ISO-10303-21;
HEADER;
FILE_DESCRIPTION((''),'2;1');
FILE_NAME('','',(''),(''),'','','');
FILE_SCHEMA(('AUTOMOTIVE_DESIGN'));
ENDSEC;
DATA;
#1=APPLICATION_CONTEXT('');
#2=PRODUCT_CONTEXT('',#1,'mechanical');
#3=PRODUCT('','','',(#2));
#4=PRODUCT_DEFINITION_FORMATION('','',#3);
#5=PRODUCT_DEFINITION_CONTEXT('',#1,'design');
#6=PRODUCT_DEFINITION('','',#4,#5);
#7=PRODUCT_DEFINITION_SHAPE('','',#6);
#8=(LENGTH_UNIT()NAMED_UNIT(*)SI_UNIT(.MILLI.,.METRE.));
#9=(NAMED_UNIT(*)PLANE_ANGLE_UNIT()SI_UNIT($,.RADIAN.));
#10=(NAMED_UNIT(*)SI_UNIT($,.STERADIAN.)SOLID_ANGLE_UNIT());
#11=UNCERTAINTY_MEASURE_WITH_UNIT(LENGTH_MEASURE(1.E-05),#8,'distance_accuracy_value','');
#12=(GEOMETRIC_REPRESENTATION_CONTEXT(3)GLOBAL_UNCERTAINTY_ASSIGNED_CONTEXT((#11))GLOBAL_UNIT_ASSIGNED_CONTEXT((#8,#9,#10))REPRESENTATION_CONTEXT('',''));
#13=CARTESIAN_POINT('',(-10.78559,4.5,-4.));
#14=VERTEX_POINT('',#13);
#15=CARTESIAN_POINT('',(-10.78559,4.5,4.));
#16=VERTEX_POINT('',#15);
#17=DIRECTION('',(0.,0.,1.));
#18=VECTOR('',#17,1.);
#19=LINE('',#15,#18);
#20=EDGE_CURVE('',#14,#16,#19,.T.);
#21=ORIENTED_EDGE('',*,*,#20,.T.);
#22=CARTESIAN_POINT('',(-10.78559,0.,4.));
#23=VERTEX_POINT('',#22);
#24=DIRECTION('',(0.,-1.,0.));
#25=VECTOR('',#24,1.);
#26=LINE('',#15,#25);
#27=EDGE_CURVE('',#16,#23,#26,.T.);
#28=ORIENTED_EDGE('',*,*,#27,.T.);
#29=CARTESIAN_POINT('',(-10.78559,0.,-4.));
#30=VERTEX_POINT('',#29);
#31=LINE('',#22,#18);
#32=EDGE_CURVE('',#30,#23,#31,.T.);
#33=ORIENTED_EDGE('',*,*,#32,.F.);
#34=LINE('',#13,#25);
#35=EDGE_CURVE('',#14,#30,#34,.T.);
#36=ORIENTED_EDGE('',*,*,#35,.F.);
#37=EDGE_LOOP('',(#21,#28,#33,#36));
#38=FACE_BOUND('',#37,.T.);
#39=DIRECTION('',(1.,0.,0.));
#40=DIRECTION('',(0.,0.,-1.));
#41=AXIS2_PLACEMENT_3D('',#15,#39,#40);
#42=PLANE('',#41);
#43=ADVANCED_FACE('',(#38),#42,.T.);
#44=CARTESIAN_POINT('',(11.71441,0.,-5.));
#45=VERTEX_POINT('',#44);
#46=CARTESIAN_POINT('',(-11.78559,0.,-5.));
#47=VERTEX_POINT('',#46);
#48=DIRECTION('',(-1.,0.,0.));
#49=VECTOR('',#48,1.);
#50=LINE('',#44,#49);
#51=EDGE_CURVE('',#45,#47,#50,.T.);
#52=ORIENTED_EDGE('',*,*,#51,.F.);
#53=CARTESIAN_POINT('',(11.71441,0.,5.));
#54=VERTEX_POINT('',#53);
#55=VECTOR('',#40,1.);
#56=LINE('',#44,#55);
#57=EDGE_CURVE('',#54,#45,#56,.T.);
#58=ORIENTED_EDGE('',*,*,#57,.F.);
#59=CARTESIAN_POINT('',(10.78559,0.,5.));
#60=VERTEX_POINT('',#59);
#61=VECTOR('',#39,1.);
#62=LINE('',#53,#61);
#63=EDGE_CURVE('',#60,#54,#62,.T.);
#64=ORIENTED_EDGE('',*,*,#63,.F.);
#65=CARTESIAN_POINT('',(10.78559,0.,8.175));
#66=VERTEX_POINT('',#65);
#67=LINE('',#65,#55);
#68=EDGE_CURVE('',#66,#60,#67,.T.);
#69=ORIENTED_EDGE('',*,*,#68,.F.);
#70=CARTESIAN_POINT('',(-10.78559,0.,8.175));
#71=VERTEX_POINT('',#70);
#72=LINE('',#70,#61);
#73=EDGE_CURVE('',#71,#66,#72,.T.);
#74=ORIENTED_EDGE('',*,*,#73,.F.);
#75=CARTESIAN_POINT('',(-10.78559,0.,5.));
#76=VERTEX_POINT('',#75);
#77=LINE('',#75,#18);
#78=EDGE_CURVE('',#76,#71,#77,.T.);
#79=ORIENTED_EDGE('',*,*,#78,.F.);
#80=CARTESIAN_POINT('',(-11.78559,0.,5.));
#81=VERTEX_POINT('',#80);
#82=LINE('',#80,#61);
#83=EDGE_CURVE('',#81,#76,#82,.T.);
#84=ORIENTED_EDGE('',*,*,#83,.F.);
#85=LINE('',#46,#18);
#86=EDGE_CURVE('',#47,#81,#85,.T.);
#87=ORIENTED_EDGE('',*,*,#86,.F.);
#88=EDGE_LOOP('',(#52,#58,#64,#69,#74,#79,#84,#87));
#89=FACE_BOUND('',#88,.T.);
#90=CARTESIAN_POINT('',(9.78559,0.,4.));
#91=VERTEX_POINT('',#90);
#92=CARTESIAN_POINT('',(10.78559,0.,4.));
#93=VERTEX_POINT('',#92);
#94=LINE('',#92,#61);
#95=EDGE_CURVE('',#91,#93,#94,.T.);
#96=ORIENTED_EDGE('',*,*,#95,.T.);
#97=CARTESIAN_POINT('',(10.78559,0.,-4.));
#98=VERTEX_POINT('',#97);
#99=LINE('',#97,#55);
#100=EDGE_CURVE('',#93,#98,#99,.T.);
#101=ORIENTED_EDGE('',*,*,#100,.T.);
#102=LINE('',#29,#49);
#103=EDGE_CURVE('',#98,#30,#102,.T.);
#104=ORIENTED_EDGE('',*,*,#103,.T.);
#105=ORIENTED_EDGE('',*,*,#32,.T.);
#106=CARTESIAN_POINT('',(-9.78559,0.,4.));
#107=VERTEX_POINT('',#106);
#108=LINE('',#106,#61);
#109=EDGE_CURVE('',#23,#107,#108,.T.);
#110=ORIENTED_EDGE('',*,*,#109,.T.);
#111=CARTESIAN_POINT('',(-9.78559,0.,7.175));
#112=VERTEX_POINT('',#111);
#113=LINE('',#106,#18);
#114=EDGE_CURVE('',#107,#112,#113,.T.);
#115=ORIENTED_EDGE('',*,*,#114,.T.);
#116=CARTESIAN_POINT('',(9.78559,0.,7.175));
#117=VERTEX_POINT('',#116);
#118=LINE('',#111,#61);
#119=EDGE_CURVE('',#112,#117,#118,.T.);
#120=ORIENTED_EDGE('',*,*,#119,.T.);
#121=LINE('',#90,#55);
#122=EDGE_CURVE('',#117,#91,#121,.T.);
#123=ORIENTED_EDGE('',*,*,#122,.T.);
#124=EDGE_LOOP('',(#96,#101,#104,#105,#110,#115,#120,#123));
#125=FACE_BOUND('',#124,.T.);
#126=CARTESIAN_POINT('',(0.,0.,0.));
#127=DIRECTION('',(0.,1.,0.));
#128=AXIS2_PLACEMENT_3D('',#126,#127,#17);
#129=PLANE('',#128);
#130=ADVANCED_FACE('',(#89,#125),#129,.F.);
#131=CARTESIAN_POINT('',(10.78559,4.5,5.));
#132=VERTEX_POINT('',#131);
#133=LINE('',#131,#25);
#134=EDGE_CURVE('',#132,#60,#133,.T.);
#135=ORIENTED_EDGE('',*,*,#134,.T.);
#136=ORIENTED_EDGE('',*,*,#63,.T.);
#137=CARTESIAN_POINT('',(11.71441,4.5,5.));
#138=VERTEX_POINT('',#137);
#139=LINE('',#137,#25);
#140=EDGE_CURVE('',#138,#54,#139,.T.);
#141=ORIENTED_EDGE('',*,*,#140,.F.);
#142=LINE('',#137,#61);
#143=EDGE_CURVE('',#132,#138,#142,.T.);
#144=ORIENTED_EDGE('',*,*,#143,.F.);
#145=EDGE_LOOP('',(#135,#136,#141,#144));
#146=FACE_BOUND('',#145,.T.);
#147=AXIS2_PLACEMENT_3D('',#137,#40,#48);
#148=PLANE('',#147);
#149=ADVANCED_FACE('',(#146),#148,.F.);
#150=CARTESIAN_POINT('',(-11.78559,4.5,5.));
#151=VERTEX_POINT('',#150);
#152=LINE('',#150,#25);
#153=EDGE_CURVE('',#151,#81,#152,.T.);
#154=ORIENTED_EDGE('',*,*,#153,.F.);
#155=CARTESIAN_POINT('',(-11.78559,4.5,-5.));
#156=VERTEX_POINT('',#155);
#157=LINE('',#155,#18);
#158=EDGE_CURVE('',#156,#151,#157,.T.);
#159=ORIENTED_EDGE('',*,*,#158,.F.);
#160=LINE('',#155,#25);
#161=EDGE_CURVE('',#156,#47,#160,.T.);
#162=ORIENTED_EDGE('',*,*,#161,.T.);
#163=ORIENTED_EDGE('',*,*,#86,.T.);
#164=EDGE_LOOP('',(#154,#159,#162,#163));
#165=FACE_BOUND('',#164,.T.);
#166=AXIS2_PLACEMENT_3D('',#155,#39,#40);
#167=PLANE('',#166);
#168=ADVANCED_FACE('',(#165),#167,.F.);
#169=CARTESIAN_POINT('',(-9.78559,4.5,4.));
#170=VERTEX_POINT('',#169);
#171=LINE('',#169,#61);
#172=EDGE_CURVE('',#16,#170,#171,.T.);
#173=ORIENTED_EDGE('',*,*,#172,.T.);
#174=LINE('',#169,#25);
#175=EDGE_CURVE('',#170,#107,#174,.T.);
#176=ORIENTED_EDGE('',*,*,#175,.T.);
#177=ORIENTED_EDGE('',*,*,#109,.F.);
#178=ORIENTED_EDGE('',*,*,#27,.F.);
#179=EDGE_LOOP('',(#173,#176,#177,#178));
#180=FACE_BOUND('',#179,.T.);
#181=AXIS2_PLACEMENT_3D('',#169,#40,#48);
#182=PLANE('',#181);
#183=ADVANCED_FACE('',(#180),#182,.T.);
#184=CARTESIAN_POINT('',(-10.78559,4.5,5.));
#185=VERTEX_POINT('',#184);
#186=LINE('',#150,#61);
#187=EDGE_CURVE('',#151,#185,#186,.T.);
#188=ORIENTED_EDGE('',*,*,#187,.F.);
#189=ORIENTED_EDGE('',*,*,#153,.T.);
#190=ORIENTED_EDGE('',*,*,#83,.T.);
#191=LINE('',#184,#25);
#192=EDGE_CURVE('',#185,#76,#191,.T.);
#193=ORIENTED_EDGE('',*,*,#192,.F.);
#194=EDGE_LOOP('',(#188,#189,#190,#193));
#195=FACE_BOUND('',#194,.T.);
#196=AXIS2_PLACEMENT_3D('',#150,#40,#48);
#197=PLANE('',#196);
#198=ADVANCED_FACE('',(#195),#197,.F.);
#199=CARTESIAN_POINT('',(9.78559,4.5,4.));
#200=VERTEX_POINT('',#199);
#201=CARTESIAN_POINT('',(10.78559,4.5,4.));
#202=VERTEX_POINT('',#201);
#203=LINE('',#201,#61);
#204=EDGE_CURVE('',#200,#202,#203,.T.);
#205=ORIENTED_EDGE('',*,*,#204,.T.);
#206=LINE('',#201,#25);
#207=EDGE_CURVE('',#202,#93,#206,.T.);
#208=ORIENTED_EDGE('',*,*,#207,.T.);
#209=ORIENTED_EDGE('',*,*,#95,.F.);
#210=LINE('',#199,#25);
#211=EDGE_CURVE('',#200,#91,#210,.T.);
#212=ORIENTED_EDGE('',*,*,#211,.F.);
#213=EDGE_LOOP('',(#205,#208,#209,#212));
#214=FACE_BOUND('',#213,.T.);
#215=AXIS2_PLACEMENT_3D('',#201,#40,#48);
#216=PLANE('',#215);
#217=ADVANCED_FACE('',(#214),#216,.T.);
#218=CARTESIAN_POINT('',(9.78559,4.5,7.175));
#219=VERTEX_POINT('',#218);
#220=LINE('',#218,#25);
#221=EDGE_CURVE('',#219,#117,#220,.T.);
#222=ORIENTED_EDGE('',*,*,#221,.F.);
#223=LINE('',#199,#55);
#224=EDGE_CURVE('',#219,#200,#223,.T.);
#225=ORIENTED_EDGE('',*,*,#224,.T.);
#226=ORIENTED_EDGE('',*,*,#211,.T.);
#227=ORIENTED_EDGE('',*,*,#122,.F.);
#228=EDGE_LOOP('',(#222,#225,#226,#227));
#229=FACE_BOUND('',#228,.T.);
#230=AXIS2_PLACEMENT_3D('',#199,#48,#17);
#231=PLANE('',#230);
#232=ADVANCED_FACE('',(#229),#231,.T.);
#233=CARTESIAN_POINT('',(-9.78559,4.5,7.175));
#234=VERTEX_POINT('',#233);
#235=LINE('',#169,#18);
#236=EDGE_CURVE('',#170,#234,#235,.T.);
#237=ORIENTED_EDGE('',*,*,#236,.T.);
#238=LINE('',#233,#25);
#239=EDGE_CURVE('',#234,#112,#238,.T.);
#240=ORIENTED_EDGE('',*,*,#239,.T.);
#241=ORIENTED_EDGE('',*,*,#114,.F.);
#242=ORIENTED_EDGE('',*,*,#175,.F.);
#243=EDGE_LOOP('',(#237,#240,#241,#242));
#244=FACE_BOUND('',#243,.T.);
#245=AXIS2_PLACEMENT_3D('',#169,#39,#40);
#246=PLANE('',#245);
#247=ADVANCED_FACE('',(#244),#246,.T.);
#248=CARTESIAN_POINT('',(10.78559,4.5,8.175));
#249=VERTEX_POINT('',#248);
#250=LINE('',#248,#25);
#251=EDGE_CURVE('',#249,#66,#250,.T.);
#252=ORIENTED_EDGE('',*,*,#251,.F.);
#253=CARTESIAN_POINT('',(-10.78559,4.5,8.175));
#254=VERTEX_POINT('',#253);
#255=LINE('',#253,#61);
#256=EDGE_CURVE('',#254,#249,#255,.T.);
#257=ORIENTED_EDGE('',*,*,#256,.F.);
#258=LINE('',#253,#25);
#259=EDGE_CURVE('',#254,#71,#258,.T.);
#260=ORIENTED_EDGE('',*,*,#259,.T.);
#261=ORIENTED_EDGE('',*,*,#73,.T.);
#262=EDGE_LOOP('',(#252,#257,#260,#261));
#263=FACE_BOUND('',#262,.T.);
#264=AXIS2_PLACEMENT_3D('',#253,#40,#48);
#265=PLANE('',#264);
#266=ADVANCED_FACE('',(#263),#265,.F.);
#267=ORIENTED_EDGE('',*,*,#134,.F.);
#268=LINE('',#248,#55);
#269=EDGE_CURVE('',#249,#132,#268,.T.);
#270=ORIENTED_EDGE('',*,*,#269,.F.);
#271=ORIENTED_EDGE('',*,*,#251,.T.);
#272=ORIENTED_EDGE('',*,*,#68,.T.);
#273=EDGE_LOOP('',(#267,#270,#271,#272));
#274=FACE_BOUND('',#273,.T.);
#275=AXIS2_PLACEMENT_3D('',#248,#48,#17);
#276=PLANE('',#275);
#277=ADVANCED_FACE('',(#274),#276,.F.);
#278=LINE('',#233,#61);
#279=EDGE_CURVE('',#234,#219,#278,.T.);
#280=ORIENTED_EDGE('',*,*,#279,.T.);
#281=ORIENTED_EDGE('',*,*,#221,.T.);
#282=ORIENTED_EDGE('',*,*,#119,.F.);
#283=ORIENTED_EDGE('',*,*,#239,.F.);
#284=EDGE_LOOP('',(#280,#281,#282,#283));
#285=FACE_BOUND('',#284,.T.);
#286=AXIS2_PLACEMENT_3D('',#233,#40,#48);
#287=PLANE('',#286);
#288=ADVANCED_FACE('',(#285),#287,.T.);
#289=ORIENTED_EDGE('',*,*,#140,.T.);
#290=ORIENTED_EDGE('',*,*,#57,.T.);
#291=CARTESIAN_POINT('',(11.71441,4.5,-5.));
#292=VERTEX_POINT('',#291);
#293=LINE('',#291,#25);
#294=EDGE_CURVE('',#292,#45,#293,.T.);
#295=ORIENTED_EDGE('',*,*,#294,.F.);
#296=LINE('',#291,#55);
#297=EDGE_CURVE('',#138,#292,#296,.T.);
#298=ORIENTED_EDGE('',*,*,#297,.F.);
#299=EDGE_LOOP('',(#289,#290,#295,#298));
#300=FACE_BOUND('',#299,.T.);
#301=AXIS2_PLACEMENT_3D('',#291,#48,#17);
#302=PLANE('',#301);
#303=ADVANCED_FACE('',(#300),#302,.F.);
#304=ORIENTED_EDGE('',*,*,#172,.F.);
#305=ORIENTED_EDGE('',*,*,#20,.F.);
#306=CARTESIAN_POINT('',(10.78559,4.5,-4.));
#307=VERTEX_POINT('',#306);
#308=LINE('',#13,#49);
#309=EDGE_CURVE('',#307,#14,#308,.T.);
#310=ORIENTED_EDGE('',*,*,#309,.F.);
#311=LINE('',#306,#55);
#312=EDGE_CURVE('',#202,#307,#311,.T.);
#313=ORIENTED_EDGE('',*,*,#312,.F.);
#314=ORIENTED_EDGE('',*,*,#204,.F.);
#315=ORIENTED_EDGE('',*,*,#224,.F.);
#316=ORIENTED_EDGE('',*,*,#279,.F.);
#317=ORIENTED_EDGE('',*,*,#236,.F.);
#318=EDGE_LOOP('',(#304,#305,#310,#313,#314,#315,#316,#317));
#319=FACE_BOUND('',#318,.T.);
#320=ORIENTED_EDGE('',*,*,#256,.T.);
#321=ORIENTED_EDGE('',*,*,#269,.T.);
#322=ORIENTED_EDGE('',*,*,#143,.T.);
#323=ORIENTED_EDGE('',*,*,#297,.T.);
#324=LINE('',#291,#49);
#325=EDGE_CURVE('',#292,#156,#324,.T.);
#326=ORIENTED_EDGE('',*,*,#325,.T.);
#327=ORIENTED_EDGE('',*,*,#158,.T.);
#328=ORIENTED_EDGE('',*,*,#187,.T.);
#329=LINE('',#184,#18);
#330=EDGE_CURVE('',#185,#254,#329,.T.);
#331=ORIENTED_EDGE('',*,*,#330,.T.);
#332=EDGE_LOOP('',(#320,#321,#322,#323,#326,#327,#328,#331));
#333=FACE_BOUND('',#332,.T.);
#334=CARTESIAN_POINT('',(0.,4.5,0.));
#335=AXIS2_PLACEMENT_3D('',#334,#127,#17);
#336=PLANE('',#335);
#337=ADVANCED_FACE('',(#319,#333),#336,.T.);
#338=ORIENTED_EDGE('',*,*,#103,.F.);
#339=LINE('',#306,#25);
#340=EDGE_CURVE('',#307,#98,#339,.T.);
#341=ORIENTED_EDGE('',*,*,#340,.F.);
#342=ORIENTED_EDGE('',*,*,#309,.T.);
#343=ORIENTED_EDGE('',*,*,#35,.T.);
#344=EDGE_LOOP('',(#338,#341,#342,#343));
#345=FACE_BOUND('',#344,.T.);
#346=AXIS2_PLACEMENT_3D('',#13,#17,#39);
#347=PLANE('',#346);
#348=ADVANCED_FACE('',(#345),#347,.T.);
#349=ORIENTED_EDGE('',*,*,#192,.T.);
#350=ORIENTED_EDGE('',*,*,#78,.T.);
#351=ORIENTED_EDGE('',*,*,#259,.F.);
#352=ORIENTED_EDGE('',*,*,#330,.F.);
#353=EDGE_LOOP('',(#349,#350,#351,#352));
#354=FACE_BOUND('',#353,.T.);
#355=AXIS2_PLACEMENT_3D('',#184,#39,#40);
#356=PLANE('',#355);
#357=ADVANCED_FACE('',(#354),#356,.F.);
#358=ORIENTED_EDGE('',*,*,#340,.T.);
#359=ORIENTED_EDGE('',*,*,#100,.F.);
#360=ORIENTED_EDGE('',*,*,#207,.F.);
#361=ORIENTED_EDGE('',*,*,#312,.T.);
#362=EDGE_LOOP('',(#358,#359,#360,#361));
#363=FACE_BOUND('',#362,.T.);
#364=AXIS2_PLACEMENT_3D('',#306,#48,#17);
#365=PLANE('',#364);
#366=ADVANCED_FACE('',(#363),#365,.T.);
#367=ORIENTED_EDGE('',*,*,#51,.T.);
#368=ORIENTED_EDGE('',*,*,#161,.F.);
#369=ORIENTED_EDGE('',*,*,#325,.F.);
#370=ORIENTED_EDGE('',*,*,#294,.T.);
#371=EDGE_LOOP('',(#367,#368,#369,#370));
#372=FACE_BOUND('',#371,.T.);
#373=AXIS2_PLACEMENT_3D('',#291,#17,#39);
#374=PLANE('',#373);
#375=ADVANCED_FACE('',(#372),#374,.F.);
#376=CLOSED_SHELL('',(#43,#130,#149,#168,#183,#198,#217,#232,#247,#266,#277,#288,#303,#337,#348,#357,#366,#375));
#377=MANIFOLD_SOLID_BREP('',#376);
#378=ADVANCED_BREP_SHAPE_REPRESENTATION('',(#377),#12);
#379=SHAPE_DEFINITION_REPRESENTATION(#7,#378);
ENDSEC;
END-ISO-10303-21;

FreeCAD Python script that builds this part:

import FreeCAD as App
import Part
import Sketcher

V = App.Vector

doc = App.newDocument("Part")
body = doc.addObject("PartDesign::Body", "Body")

# Sketch on XZ plane
sketch1 = body.newObject("Sketcher::SketchObject", "Sketch")
sketch1.AttachmentSupport = (doc.getObject("XZ_Plane"), [""])
sketch1.MapMode = "FlatFace"
sketch1.addGeometry([
    Part.LineSegment(V(11.7, 5, 0), V(11.7, -5, 0)),  # 0
    Part.LineSegment(V(11.7, -5, 0), V(-11.8, -5, 0)),  # 1
    Part.LineSegment(V(-11.8, -5, 0), V(-11.8, 5, 0)),  # 2
    Part.LineSegment(V(-11.8, 5, 0), V(-10.8, 5, 0)),  # 3
    Part.LineSegment(V(-10.8, 5, 0), V(-10.8, 8.2, 0)),  # 4
    Part.LineSegment(V(-10.8, 8.2, 0), V(10.8, 8.2, 0)),  # 5
    Part.LineSegment(V(10.8, 8.2, 0), V(10.8, 5, 0)),  # 6
    Part.LineSegment(V(10.8, 5, 0), V(11.7, 5, 0)),  # 7
    Part.LineSegment(V(10.8, -4, 0), V(10.8, 4, 0)),  # 8
    Part.LineSegment(V(10.8, 4, 0), V(9.8, 4, 0)),  # 9
    Part.LineSegment(V(9.8, 4, 0), V(9.8, 7.2, 0)),  # 10
    Part.LineSegment(V(9.8, 7.2, 0), V(-9.8, 7.2, 0)),  # 11
    Part.LineSegment(V(-9.8, 7.2, 0), V(-9.8, 4, 0)),  # 12
    Part.LineSegment(V(-9.8, 4, 0), V(-10.8, 4, 0)),  # 13
    Part.LineSegment(V(-10.8, 4, 0), V(-10.8, -4, 0)),  # 14
    Part.LineSegment(V(-10.8, -4, 0), V(10.8, -4, 0)),  # 15
], False)
sketch1.addConstraint([
    Sketcher.Constraint("Coincident", 0, 2, 1, 1),
    Sketcher.Constraint("Coincident", 1, 2, 2, 1),
    Sketcher.Constraint("Coincident", 2, 2, 3, 1),
    Sketcher.Constraint("Coincident", 3, 2, 4, 1),
    Sketcher.Constraint("Coincident", 4, 2, 5, 1),
    Sketcher.Constraint("Coincident", 5, 2, 6, 1),
    Sketcher.Constraint("Coincident", 6, 2, 7, 1),
    Sketcher.Constraint("Coincident", 7, 2, 0, 1),
    Sketcher.Constraint("Coincident", 8, 2, 9, 1),
    Sketcher.Constraint("Coincident", 9, 2, 10, 1),
    Sketcher.Constraint("Coincident", 10, 2, 11, 1),
    Sketcher.Constraint("Coincident", 11, 2, 12, 1),
    Sketcher.Constraint("Coincident", 12, 2, 13, 1),
    Sketcher.Constraint("Coincident", 13, 2, 14, 1),
    Sketcher.Constraint("Coincident", 14, 2, 15, 1),
    Sketcher.Constraint("Coincident", 15, 2, 8, 1),
    Sketcher.Constraint("Vertical", 0),
    Sketcher.Constraint("Horizontal", 1),
    Sketcher.Constraint("Vertical", 2),
    Sketcher.Constraint("Horizontal", 3),
    Sketcher.Constraint("Vertical", 4),
    Sketcher.Constraint("Horizontal", 5),
    Sketcher.Constraint("Vertical", 6),
    Sketcher.Constraint("Horizontal", 7),
    Sketcher.Constraint("Vertical", 8),
    Sketcher.Constraint("Horizontal", 9),
    Sketcher.Constraint("Vertical", 10),
    Sketcher.Constraint("Horizontal", 11),
    Sketcher.Constraint("Vertical", 12),
    Sketcher.Constraint("Horizontal", 13),
    Sketcher.Constraint("Vertical", 14),
    Sketcher.Constraint("Horizontal", 15),
    Sketcher.Constraint("Symmetric", 8, 2, 14, 2, -1, 1),
    Sketcher.Constraint("Symmetric", 3, 2, 6, 2, -2),
    Sketcher.Constraint("Symmetric", 9, 2, 12, 2, -2),
    Sketcher.Constraint("Vertical", 6, 2, 8, 2),
    Sketcher.Constraint("Equal", 3, 9),
    Sketcher.Constraint("Equal", 6, 10),
    Sketcher.Constraint("DistanceX", 3, 1, 3, 2, 1.0),
    Sketcher.Constraint("DistanceY", 0, 2, 0, 1, 10.0),
    Sketcher.Constraint("DistanceY", 8, 1, 8, 2, 8.0),
    Sketcher.Constraint("DistanceX", 1, 2, 1, 1, 23.5),
    Sketcher.Constraint("DistanceY", 0, 2, -1, 1, 5.0),
    Sketcher.Constraint("DistanceY", 4, 1, 4, 2, 3.175),
    Sketcher.Constraint("DistanceX", 5, 1, 5, 2, 21.571179),
])
pad1 = body.newObject("PartDesign::Pad", "Pad")
pad1.Profile = sketch1
pad1.Length = 4.5
pad1.Reversed = True

doc.recompute()
